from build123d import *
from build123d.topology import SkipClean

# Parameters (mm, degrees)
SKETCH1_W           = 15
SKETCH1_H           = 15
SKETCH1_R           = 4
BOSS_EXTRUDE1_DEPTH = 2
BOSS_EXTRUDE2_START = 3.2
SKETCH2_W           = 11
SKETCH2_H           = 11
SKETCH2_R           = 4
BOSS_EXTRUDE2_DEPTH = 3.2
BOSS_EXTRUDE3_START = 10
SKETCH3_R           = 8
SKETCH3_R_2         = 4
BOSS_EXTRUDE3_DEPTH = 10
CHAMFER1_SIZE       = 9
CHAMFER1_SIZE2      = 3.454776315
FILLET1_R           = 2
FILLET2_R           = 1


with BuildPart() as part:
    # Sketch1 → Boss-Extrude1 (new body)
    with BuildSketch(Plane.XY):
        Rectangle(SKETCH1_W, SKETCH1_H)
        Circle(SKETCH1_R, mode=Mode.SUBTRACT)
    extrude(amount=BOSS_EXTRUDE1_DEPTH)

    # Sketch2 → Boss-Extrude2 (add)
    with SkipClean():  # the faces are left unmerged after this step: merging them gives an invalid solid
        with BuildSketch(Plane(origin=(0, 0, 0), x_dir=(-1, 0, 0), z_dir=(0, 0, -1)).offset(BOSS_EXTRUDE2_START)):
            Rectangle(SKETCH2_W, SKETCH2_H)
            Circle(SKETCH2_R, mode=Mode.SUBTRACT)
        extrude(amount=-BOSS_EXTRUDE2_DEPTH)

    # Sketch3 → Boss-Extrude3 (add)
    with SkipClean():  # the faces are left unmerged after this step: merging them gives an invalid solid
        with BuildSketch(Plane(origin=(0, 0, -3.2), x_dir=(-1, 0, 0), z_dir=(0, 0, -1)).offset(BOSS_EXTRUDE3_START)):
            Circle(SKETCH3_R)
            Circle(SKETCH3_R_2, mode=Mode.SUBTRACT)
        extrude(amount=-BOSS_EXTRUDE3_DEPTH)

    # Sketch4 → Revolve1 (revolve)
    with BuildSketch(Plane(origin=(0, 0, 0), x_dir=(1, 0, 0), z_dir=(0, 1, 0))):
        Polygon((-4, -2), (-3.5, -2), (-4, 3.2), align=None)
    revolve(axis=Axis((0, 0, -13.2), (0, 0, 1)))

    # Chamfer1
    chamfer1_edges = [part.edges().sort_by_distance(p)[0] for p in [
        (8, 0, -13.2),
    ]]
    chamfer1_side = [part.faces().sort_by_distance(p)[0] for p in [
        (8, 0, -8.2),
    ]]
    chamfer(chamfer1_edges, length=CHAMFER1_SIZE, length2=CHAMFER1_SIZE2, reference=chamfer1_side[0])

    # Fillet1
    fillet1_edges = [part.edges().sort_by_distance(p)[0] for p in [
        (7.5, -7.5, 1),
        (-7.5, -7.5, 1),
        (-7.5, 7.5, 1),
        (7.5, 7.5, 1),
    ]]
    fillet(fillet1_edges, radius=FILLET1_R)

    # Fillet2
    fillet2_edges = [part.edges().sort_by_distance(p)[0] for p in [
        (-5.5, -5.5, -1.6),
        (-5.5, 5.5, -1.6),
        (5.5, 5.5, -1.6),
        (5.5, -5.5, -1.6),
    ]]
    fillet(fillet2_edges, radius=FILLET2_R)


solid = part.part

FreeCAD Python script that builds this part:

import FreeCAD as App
import Part
import Sketcher
Q = App.Units.Quantity


def edges_at(feature, points):
    """Names of the edges that pass closest to the given points."""
    edges = feature.Shape.Edges
    near = lambda p: min(range(len(edges)), key=lambda i: edges[i].distToShape(Part.Vertex(*p))[0])
    return sorted({f"Edge{near(p) + 1}" for p in points})

doc = App.newDocument("Part")
body = doc.addObject("PartDesign::Body", "Body")

# Sketch on XY plane
sketch1 = doc.addObject("Sketcher::SketchObject", "Sketch")
body.addObject(sketch1)
sketch1.AttachmentSupport = (doc.XY_Plane, [""])
sketch1.MapMode = "FlatFace"
sketch1.addGeometry([
    Part.LineSegment(App.Vector(-7.5, 7.5, 0), App.Vector(-7.5, -7.5, 0)),  # 0
    Part.LineSegment(App.Vector(-7.5, -7.5, 0), App.Vector(7.5, -7.5, 0)),  # 1
    Part.LineSegment(App.Vector(7.5, -7.5, 0), App.Vector(7.5, 7.5, 0)),  # 2
    Part.LineSegment(App.Vector(7.5, 7.5, 0), App.Vector(-7.5, 7.5, 0)),  # 3
    Part.Circle(App.Vector(0, 0, 0), App.Vector(0, 0, 1), 4),  # 4
], False)
sketch1.addConstraint([
    Sketcher.Constraint("Coincident", 0, 2, 1, 1),
    Sketcher.Constraint("Coincident", 1, 2, 2, 1),
    Sketcher.Constraint("Coincident", 2, 2, 3, 1),
    Sketcher.Constraint("Coincident", 3, 2, 0, 1),
    Sketcher.Constraint("Vertical", 0),
    Sketcher.Constraint("Horizontal", 1),
    Sketcher.Constraint("Vertical", 2),
    Sketcher.Constraint("Horizontal", 3),
    Sketcher.Constraint("Coincident", 4, 3, -1, 1),
    Sketcher.Constraint("Symmetric", 0, 2, 2, 2, -1, 1),
    Sketcher.Constraint("Equal", 3, 0),
    Sketcher.Constraint("Diameter", 4, Q("8 mm")),
    Sketcher.Constraint("DistanceX", 1, 1, 1, 2, Q("15 mm")),
])
pad1 = doc.addObject("PartDesign::Pad", "Pad")
body.addObject(pad1)
pad1.Profile = sketch1
pad1.Length = 2

# Sketch on XY plane
sketch2 = doc.addObject("Sketcher::SketchObject", "Sketch001")
body.addObject(sketch2)
sketch2.AttachmentSupport = (doc.XY_Plane, [""])
sketch2.MapMode = "FlatFace"
sketch2.AttachmentOffset = App.Placement(App.Vector(0, 0, -3.2), App.Rotation())
sketch2.addGeometry([
    Part.LineSegment(App.Vector(5.5, 5.5, 0), App.Vector(5.5, -5.5, 0)),  # 0
    Part.LineSegment(App.Vector(5.5, -5.5, 0), App.Vector(-5.5, -5.5, 0)),  # 1
    Part.LineSegment(App.Vector(-5.5, -5.5, 0), App.Vector(-5.5, 5.5, 0)),  # 2
    Part.LineSegment(App.Vector(-5.5, 5.5, 0), App.Vector(5.5, 5.5, 0)),  # 3
    Part.Circle(App.Vector(0, 0, 0), App.Vector(0, 0, 1), 4),  # 4
], False)
sketch2.addConstraint([
    Sketcher.Constraint("Coincident", 0, 2, 1, 1),
    Sketcher.Constraint("Coincident", 1, 2, 2, 1),
    Sketcher.Constraint("Coincident", 2, 2, 3, 1),
    Sketcher.Constraint("Coincident", 3, 2, 0, 1),
    Sketcher.Constraint("Vertical", 0),
    Sketcher.Constraint("Horizontal", 1),
    Sketcher.Constraint("Vertical", 2),
    Sketcher.Constraint("Horizontal", 3),
    Sketcher.Constraint("Coincident", 4, 3, -1, 1),
    Sketcher.Constraint("Symmetric", 0, 2, 2, 2, -1, 1),
    Sketcher.Constraint("Equal", 3, 0),
    Sketcher.Constraint("Diameter", 4, Q("8 mm")),
    Sketcher.Constraint("DistanceX", 1, 2, 1, 1, Q("11 mm")),
])
pad2 = doc.addObject("PartDesign::Pad", "Pad001")
body.addObject(pad2)
pad2.Profile = sketch2
pad2.Length = 3.2

# Sketch on XY plane
sketch3 = doc.addObject("Sketcher::SketchObject", "Sketch002")
body.addObject(sketch3)
sketch3.AttachmentSupport = (doc.XY_Plane, [""])
sketch3.MapMode = "FlatFace"
sketch3.AttachmentOffset = App.Placement(App.Vector(0, 0, -13.2), App.Rotation())
sketch3.addGeometry([
    Part.Circle(App.Vector(0, 0, 0), App.Vector(0, 0, 1), 8),
    Part.Circle(App.Vector(0, 0, 0), App.Vector(0, 0, 1), 4),
], False)
sketch3.addConstraint([
    Sketcher.Constraint("Coincident", 0, 3, -1, 1),
    Sketcher.Constraint("Coincident", 1, 3, -1, 1),
    Sketcher.Constraint("Diameter", 0, Q("16 mm")),
    Sketcher.Constraint("Diameter", 1, Q("8 mm")),
])
pad3 = doc.addObject("PartDesign::Pad", "Pad002")
body.addObject(pad3)
pad3.Profile = sketch3
pad3.Length = 10

# Sketch on XZ plane
sketch4 = doc.addObject("Sketcher::SketchObject", "Sketch003")
body.addObject(sketch4)
sketch4.AttachmentSupport = (doc.XZ_Plane, [""])
sketch4.MapMode = "FlatFace"
sketch4.addGeometry([
    Part.LineSegment(App.Vector(-4, 2, 0), App.Vector(-3.5, 2, 0)),
    Part.LineSegment(App.Vector(-3.5, 2, 0), App.Vector(-4, -3.2, 0)),
    Part.LineSegment(App.Vector(-4, -3.2, 0), App.Vector(-4, 2, 0)),
], False)
sketch4.addConstraint([
    Sketcher.Constraint("Coincident", 0, 2, 1, 1),
    Sketcher.Constraint("Coincident", 1, 2, 2, 1),
    Sketcher.Constraint("Coincident", 2, 2, 0, 1),
    Sketcher.Constraint("Horizontal", 0),
    Sketcher.Constraint("Vertical", 2),
    Sketcher.Constraint("DistanceX", 0, 1, 0, 2, Q("0.5 mm")),
    Sketcher.Constraint("DistanceY", 2, 1, 2, 2, Q("5.2 mm")),
    Sketcher.Constraint("DistanceY", -1, 1, 0, 2, Q("2 mm")),
    Sketcher.Constraint("DistanceX", 1, 2, -1, 1, Q("4 mm")),
])
revolution = doc.addObject("PartDesign::Revolution", "Revolution")
body.addObject(revolution)
revolution.Profile = sketch4
revolution.ReferenceAxis = (sketch4, ["V_Axis"])
revolution.Angle = 360
doc.recompute()

chamfer = doc.addObject("PartDesign::Chamfer", "Chamfer")
body.addObject(chamfer)
chamfer.Base = (revolution, edges_at(revolution, [(8, 0, -13.2)]))
chamfer.ChamferType = "Two distances"
chamfer.Size = 9
chamfer.Size2 = 3.454776
chamfer.FlipDirection = True
doc.recompute()

fillet = doc.addObject("PartDesign::Fillet", "Fillet")
body.addObject(fillet)
fillet.Base = (chamfer, edges_at(chamfer, [
    (7.5, -7.5, 1),
    (-7.5, -7.5, 1),
    (-7.5, 7.5, 1),
    (7.5, 7.5, 1),
]))
fillet.Radius = 2
doc.recompute()

fillet2 = doc.addObject("PartDesign::Fillet", "Fillet001")
body.addObject(fillet2)
fillet2.Base = (fillet, edges_at(fillet, [
    (-5.5, -5.5, -1.6),
    (-5.5, 5.5, -1.6),
    (5.5, 5.5, -1.6),
    (5.5, -5.5, -1.6),
]))
fillet2.Radius = 1

doc.recompute()
